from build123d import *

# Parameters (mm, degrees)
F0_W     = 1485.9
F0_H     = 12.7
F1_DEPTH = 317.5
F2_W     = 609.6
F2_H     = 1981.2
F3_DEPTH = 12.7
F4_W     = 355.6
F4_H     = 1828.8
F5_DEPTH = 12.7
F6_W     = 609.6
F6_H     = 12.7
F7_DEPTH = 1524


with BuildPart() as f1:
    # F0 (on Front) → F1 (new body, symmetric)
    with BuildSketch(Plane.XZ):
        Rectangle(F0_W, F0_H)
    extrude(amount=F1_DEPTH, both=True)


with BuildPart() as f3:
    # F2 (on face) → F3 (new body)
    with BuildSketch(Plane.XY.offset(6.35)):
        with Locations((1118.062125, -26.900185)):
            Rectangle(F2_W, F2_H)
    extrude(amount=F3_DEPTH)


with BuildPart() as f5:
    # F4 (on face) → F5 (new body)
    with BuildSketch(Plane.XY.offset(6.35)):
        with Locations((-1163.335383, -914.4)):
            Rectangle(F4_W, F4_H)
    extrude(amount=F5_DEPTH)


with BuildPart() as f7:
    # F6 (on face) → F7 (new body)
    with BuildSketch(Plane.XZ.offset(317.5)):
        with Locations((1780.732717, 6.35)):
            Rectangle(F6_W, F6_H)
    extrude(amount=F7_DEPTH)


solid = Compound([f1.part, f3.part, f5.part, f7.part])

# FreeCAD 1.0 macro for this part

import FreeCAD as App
import Part
import Sketcher
from FreeCAD import Vector
Q = App.Units.Quantity

doc = App.newDocument("Part")
body = doc.addObject("PartDesign::Body", "Body")

# Sketch on XZ plane
sketch1 = doc.addObject("Sketcher::SketchObject", "Sketch")
body.addObject(sketch1)
sketch1.AttachmentSupport = (doc.XZ_Plane, [""])
sketch1.MapMode = "FlatFace"
sketch1.addGeometry(Part.LineSegment(Vector(-743, 6, 0), Vector(-743, -6, 0)), False)
sketch1.addGeometry(Part.LineSegment(Vector(-743, -6, 0), Vector(743, -6, 0)), False)
sketch1.addGeometry(Part.LineSegment(Vector(743, -6, 0), Vector(743, 6, 0)), False)
sketch1.addGeometry(Part.LineSegment(Vector(743, 6, 0), Vector(-743, 6, 0)), False)
sketch1.addConstraint(Sketcher.Constraint("Coincident", 0, 2, 1, 1))
sketch1.addConstraint(Sketcher.Constraint("Coincident", 1, 2, 2, 1))
sketch1.addConstraint(Sketcher.Constraint("Coincident", 2, 2, 3, 1))
sketch1.addConstraint(Sketcher.Constraint("Coincident", 3, 2, 0, 1))
sketch1.addConstraint(Sketcher.Constraint("Vertical", 0))
sketch1.addConstraint(Sketcher.Constraint("Horizontal", 1))
sketch1.addConstraint(Sketcher.Constraint("Vertical", 2))
sketch1.addConstraint(Sketcher.Constraint("Horizontal", 3))
sketch1.addConstraint(Sketcher.Constraint("Symmetric", 0, 2, 2, 2, -1, 1))
sketch1.addConstraint(Sketcher.Constraint("DistanceX", 1, 1, 1, 2, Q("58.5 in")))
sketch1.addConstraint(Sketcher.Constraint("DistanceY", 0, 2, 0, 1, Q("0.5 in")))
pad1 = doc.addObject("PartDesign::Pad", "Pad")
body.addObject(pad1)
pad1.Profile = sketch1
pad1.Length = Q("25 in")
pad1.Midplane = True
body2 = doc.addObject("PartDesign::Body", "Body001")

# Sketch on XY plane
sketch2 = doc.addObject("Sketcher::SketchObject", "Sketch001")
body2.addObject(sketch2)
sketch2.AttachmentSupport = (doc.getObject("XY_Plane001"), [""])
sketch2.MapMode = "FlatFace"
sketch2.AttachmentOffset = App.Placement(Vector(0, 0, 0.25 * 25.4), App.Rotation())
sketch2.addGeometry(Part.LineSegment(Vector(813, 964, 0), Vector(813, -1018, 0)), False)
sketch2.addGeometry(Part.LineSegment(Vector(813, -1018, 0), Vector(1423, -1018, 0)), False)
sketch2.addGeometry(Part.LineSegment(Vector(1423, -1018, 0), Vector(1423, 964, 0)), False)
sketch2.addGeometry(Part.LineSegment(Vector(1423, 964, 0), Vector(813, 964, 0)), False)
sketch2.addConstraint(Sketcher.Constraint("Coincident", 0, 2, 1, 1))
sketch2.addConstraint(Sketcher.Constraint("Coincident", 1, 2, 2, 1))
sketch2.addConstraint(Sketcher.Constraint("Coincident", 2, 2, 3, 1))
sketch2.addConstraint(Sketcher.Constraint("Coincident", 3, 2, 0, 1))
sketch2.addConstraint(Sketcher.Constraint("Vertical", 0))
sketch2.addConstraint(Sketcher.Constraint("Horizontal", 1))
sketch2.addConstraint(Sketcher.Constraint("Vertical", 2))
sketch2.addConstraint(Sketcher.Constraint("Horizontal", 3))
sketch2.addConstraint(Sketcher.Constraint("DistanceX", 1, 1, 1, 2, Q("24 in")))
sketch2.addConstraint(Sketcher.Constraint("DistanceY", 0, 2, 0, 1, Q("78 in")))
sketch2.addConstraint(Sketcher.Constraint("DistanceX", -1, 1, 0, 2, Q("813.262125 mm")))
sketch2.addConstraint(Sketcher.Constraint("DistanceY", 0, 2, -1, 1, Q("1017.500185 mm")))
pad2 = doc.addObject("PartDesign::Pad", "Pad001")
body2.addObject(pad2)
pad2.Profile = sketch2
pad2.Length = Q("0.5 in")
body3 = doc.addObject("PartDesign::Body", "Body002")

# Sketch on XY plane
sketch3 = doc.addObject("Sketcher::SketchObject", "Sketch002")
body3.addObject(sketch3)
sketch3.AttachmentSupport = (doc.getObject("XY_Plane002"), [""])
sketch3.MapMode = "FlatFace"
sketch3.AttachmentOffset = App.Placement(Vector(0, 0, 0.25 * 25.4), App.Rotation())
sketch3.addGeometry(Part.LineSegment(Vector(-1341, 0, 0), Vector(-1341, -1829, 0)), False)
sketch3.addGeometry(Part.LineSegment(Vector(-1341, -1829, 0), Vector(-986, -1829, 0)), False)
sketch3.addGeometry(Part.LineSegment(Vector(-986, -1829, 0), Vector(-986, 0, 0)), False)
sketch3.addGeometry(Part.LineSegment(Vector(-986, 0, 0), Vector(-1341, 0, 0)), False)
sketch3.addConstraint(Sketcher.Constraint("Coincident", 0, 2, 1, 1))
sketch3.addConstraint(Sketcher.Constraint("Coincident", 1, 2, 2, 1))
sketch3.addConstraint(Sketcher.Constraint("Coincident", 2, 2, 3, 1))
sketch3.addConstraint(Sketcher.Constraint("Coincident", 3, 2, 0, 1))
sketch3.addConstraint(Sketcher.Constraint("Vertical", 0))
sketch3.addConstraint(Sketcher.Constraint("Horizontal", 1))
sketch3.addConstraint(Sketcher.Constraint("Vertical", 2))
sketch3.addConstraint(Sketcher.Constraint("Horizontal", 3))
sketch3.addConstraint(Sketcher.Constraint("PointOnObject", 2, 2, -1))
sketch3.addConstraint(Sketcher.Constraint("DistanceX", 1, 1, 1, 2, Q("14 in")))
sketch3.addConstraint(Sketcher.Constraint("DistanceY", 0, 2, 0, 1, Q("72 in")))
sketch3.addConstraint(Sketcher.Constraint("DistanceX", 0, 2, -1, 1, Q("1341.135383 mm")))
pad3 = doc.addObject("PartDesign::Pad", "Pad002")
body3.addObject(pad3)
pad3.Profile = sketch3
pad3.Length = Q("0.5 in")
body4 = doc.addObject("PartDesign::Body", "Body003")

# Sketch on XZ plane
sketch4 = doc.addObject("Sketcher::SketchObject", "Sketch003")
body4.addObject(sketch4)
sketch4.AttachmentSupport = (doc.getObject("XZ_Plane003"), [""])
sketch4.MapMode = "FlatFace"
sketch4.AttachmentOffset = App.Placement(Vector(0, 0, 12.5 * 25.4), App.Rotation())
sketch4.addGeometry(Part.LineSegment(Vector(1476, 13, 0), Vector(1476, 0, 0)), False)
sketch4.addGeometry(Part.LineSegment(Vector(1476, 0, 0), Vector(2086, 0, 0)), False)
sketch4.addGeometry(Part.LineSegment(Vector(2086, 0, 0), Vector(2086, 13, 0)), False)
sketch4.addGeometry(Part.LineSegment(Vector(2086, 13, 0), Vector(1476, 13, 0)), False)
sketch4.addConstraint(Sketcher.Constraint("Coincident", 0, 2, 1, 1))
sketch4.addConstraint(Sketcher.Constraint("Coincident", 1, 2, 2, 1))
sketch4.addConstraint(Sketcher.Constraint("Coincident", 2, 2, 3, 1))
sketch4.addConstraint(Sketcher.Constraint("Coincident", 3, 2, 0, 1))
sketch4.addConstraint(Sketcher.Constraint("Vertical", 0))
sketch4.addConstraint(Sketcher.Constraint("Horizontal", 1))
sketch4.addConstraint(Sketcher.Constraint("Vertical", 2))
sketch4.addConstraint(Sketcher.Constraint("Horizontal", 3))
sketch4.addConstraint(Sketcher.Constraint("PointOnObject", 0, 2, -1))
sketch4.addConstraint(Sketcher.Constraint("DistanceX", 1, 1, 1, 2, Q("24 in")))
sketch4.addConstraint(Sketcher.Constraint("DistanceY", 0, 2, 0, 1, Q("0.5 in")))
sketch4.addConstraint(Sketcher.Constraint("DistanceX", -1, 1, 0, 2, Q("1475.932717 mm")))
pad4 = doc.addObject("PartDesign::Pad", "Pad003")
body4.addObject(pad4)
pad4.Profile = sketch4
pad4.Length = Q("60 in")

doc.recompute()
